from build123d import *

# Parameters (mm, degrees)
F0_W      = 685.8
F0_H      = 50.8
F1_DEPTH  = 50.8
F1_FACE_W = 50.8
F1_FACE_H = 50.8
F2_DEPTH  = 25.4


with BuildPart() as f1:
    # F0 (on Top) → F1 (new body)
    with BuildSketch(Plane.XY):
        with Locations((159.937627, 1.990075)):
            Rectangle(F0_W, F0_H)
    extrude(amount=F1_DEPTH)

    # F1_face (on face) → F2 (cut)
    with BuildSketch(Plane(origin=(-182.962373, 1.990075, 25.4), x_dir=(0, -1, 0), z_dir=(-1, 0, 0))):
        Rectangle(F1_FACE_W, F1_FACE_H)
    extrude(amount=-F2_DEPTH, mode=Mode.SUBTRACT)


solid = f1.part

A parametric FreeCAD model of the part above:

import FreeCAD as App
import Part
import Sketcher
Q = App.Units.Quantity

doc = App.newDocument("Part")
params = doc.addObject("Spreadsheet::Sheet", "Params")
for row, (alias, value) in enumerate([
    ("sketch1_width", "27 in"),
    ("sketch1_height", "2 in"),
    ("pad1_length", "2 in"),
    ("sketch2_width", "2 in"),
    ("pocket1_length", "1 in"),
], start=1):
    params.set(f"A{row}", alias)
    params.set(f"B{row}", "=" + value)
    params.setAlias(f"B{row}", alias)

body = doc.addObject("PartDesign::Body", "Body")

# Sketch on XY plane
sketch1 = body.newObject("Sketcher::SketchObject", "Sketch")
sketch1.AttachmentSupport = (doc.getObject("XY_Plane"), [""])
sketch1.MapMode = "FlatFace"
sketch1.addGeometry([
    Part.LineSegment(App.Vector(-183, 27, 0), App.Vector(-183, -23, 0)),
    Part.LineSegment(App.Vector(-183, -23, 0), App.Vector(503, -23, 0)),
    Part.LineSegment(App.Vector(503, -23, 0), App.Vector(503, 27, 0)),
    Part.LineSegment(App.Vector(503, 27, 0), App.Vector(-183, 27, 0)),
], False)
sketch1.addConstraint([
    Sketcher.Constraint("Coincident", 0, 2, 1, 1),
    Sketcher.Constraint("Coincident", 1, 2, 2, 1),
    Sketcher.Constraint("Coincident", 2, 2, 3, 1),
    Sketcher.Constraint("Coincident", 3, 2, 0, 1),
    Sketcher.Constraint("Vertical", 0),
    Sketcher.Constraint("Horizontal", 1),
    Sketcher.Constraint("Vertical", 2),
    Sketcher.Constraint("Horizontal", 3),
    Sketcher.Constraint("DistanceX", 1, 1, 1, 2, Q("27 in")),
    Sketcher.Constraint("DistanceY", 0, 2, 0, 1, Q("2 in")),
    Sketcher.Constraint("DistanceX", 0, 2, -1, 1, 182.962373),
    Sketcher.Constraint("DistanceY", 0, 2, -1, 1, 23.409925),
])
sketch1.setExpression("Constraints[8]", "Params.sketch1_width")
sketch1.setExpression("Constraints[9]", "Params.sketch1_height")
pad1 = body.newObject("PartDesign::Pad", "Pad")
pad1.Profile = sketch1
pad1.setExpression("Length", "Params.pad1_length")

# Sketch on YZ plane
sketch2 = body.newObject("Sketcher::SketchObject", "Sketch001")
sketch2.AttachmentSupport = (doc.getObject("YZ_Plane"), [""])
sketch2.MapMode = "FlatFace"
sketch2.AttachmentOffset = App.Placement(App.Vector(0, 0, -182.962373), App.Rotation())
sketch2.addGeometry([
    Part.LineSegment(App.Vector(27, 51, 0), App.Vector(27, 0, 0)),
    Part.LineSegment(App.Vector(27, 0, 0), App.Vector(-23, 0, 0)),
    Part.LineSegment(App.Vector(-23, 0, 0), App.Vector(-23, 51, 0)),
    Part.LineSegment(App.Vector(-23, 51, 0), App.Vector(27, 51, 0)),
], False)
sketch2.addConstraint([
    Sketcher.Constraint("Coincident", 0, 2, 1, 1),
    Sketcher.Constraint("Coincident", 1, 2, 2, 1),
    Sketcher.Constraint("Coincident", 2, 2, 3, 1),
    Sketcher.Constraint("Coincident", 3, 2, 0, 1),
    Sketcher.Constraint("Vertical", 0),
    Sketcher.Constraint("Horizontal", 1),
    Sketcher.Constraint("Vertical", 2),
    Sketcher.Constraint("Horizontal", 3),
    Sketcher.Constraint("PointOnObject", 0, 2, -1),
    Sketcher.Constraint("Equal", 3, 0),
    Sketcher.Constraint("DistanceX", 1, 2, 1, 1, Q("2 in")),
    Sketcher.Constraint("DistanceX", -1, 1, 0, 2, 27.390075),
])
sketch2.setExpression("Constraints[10]", "Params.sketch2_width")
pocket1 = body.newObject("PartDesign::Pocket", "Pocket")
pocket1.Profile = sketch2
pocket1.setExpression("Length", "Params.pocket1_length")
pocket1.Reversed = True

doc.recompute()
